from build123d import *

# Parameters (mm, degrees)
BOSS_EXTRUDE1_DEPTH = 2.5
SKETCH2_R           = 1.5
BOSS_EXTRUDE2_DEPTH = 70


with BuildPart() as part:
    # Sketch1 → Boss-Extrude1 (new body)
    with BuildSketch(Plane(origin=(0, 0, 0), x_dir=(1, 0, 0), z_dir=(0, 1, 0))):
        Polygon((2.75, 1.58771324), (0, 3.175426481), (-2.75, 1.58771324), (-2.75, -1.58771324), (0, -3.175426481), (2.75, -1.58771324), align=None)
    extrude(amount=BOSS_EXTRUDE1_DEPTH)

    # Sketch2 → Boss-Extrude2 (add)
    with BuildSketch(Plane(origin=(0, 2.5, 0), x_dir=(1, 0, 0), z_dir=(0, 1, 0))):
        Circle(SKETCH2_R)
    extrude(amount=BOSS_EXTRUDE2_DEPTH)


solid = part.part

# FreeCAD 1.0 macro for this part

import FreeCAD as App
import Part
import Sketcher
Q = App.Units.Quantity


def add_polygon(sketch, points):
    """Adds a closed chain of lines whose ends are joined by coincident constraints."""
    first, n = sketch.GeometryCount, len(points)
    for a, b in zip(points, points[1:] + points[:1]):
        sketch.addGeometry(Part.LineSegment(App.Vector(*a, 0), App.Vector(*b, 0)), False)
    for i in range(n):
        sketch.addConstraint(Sketcher.Constraint("Coincident", first + i, 2, first + (i + 1) % n, 1))

doc = App.newDocument("Part")
body = doc.addObject("PartDesign::Body", "Body")

# Sketch on XZ plane
sketch1 = body.newObject("Sketcher::SketchObject", "Sketch")
sketch1.AttachmentSupport = (doc.getObject("XZ_Plane"), [""])
sketch1.MapMode = "FlatFace"
add_polygon(sketch1, [(2.8, -1.6), (0, -3.2), (-2.8, -1.6), (-2.8, 1.6), (0, 3.2), (2.8, 1.6)])  # lines 0-5
sketch1.addConstraint(Sketcher.Constraint("Vertical", 2))
sketch1.addConstraint(Sketcher.Constraint("Vertical", 5))
sketch1.addConstraint(Sketcher.Constraint("Symmetric", 0, 2, 3, 2, -1, 1))
sketch1.addConstraint(Sketcher.Constraint("Symmetric", 1, 2, 4, 2, -1, 1))
sketch1.addConstraint(Sketcher.Constraint("PointOnObject", 0, 2, -2))
sketch1.addConstraint(Sketcher.Constraint("Parallel", 0, 3))
sketch1.addConstraint(Sketcher.Constraint("Horizontal", 2, 2, 4, 2))
sketch1.addConstraint(Sketcher.Constraint("Angle", 0, Q("-150 deg")))
sketch1.addConstraint(Sketcher.Constraint("DistanceX", 2, 2, 4, 2, Q("5.5 mm")))
sketch1.addConstraint(Sketcher.Constraint("DistanceY", 2, 1, 2, 2, Q("3.175426 mm")))
pad1 = body.newObject("PartDesign::Pad", "Pad")
pad1.Profile = sketch1
pad1.Length = 2.5
pad1.Reversed = True

# Sketch on XZ plane
sketch2 = body.newObject("Sketcher::SketchObject", "Sketch001")
sketch2.AttachmentSupport = (doc.getObject("XZ_Plane"), [""])
sketch2.MapMode = "FlatFace"
sketch2.AttachmentOffset = App.Placement(App.Vector(0, 0, -2.5), App.Rotation())
sketch2.addGeometry(Part.Circle(App.Vector(0, 0, 0), App.Vector(0, 0, 1), 1.5), False)
sketch2.addConstraint(Sketcher.Constraint("Coincident", 0, 3, -1, 1))
sketch2.addConstraint(Sketcher.Constraint("Diameter", 0, Q("3 mm")))
pad2 = body.newObject("PartDesign::Pad", "Pad001")
pad2.Profile = sketch2
pad2.Length = 70
pad2.Reversed = True

doc.recompute()
